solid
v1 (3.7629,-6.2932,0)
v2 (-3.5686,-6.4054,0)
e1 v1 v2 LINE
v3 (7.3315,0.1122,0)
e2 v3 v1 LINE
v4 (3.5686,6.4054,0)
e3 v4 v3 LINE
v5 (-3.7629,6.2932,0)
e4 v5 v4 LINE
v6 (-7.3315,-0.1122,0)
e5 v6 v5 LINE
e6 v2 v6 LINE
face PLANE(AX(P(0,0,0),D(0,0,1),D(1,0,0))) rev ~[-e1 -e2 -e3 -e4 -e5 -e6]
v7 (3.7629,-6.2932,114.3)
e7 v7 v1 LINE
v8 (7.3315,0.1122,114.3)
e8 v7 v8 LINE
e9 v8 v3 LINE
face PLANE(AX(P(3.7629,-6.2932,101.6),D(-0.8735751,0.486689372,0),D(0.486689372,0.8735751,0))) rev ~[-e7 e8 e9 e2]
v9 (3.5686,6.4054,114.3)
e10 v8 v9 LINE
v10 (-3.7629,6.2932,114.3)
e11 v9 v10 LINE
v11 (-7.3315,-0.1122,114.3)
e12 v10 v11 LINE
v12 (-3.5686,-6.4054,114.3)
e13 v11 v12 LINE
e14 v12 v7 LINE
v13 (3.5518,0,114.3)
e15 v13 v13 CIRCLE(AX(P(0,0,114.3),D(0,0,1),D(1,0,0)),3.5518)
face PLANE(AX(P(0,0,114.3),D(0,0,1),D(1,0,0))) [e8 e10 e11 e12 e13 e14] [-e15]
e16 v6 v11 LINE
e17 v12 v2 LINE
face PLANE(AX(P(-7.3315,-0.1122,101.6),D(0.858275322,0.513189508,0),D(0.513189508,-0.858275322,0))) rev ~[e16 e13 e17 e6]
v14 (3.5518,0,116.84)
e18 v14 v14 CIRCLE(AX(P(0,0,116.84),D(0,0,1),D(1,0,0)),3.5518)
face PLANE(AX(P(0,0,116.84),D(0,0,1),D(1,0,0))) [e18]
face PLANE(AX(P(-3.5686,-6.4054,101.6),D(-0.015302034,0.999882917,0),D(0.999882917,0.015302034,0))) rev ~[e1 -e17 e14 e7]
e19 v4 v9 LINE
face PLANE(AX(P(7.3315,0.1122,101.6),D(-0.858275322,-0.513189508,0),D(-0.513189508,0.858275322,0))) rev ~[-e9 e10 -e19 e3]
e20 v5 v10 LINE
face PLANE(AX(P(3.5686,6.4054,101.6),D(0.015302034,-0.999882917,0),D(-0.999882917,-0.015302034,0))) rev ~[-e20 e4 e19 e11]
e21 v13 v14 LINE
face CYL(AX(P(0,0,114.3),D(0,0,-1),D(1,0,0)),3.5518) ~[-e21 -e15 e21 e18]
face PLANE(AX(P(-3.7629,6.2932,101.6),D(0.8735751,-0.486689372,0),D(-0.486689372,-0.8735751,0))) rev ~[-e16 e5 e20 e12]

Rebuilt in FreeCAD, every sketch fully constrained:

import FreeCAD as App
import Part
import Sketcher
from FreeCAD import Vector
Q = App.Units.Quantity

doc = App.newDocument("Part")
body = doc.addObject("PartDesign::Body", "Body")

# Sketch on XY plane
sketch1 = body.newObject("Sketcher::SketchObject", "Sketch")
sketch1.AttachmentSupport = (doc.getObject("XY_Plane"), [""])
sketch1.MapMode = "FlatFace"
sketch1.addGeometry(Part.LineSegment(Vector(3.5686, 6.4054, 0), Vector(-3.7629, 6.2932, 0)), False)
sketch1.addGeometry(Part.LineSegment(Vector(-3.7629, 6.2932, 0), Vector(-7.3315, -0.1122, 0)), False)
sketch1.addGeometry(Part.LineSegment(Vector(-7.3315, -0.1122, 0), Vector(-3.5686, -6.4054, 0)), False)
sketch1.addGeometry(Part.LineSegment(Vector(-3.5686, -6.4054, 0), Vector(3.7629, -6.2932, 0)), False)
sketch1.addGeometry(Part.LineSegment(Vector(3.7629, -6.2932, 0), Vector(7.3315, 0.1122, 0)), False)
sketch1.addGeometry(Part.LineSegment(Vector(7.3315, 0.1122, 0), Vector(3.5686, 6.4054, 0)), False)
sketch1.addConstraint(Sketcher.Constraint("Coincident", 0, 2, 1, 1))
sketch1.addConstraint(Sketcher.Constraint("Coincident", 1, 2, 2, 1))
sketch1.addConstraint(Sketcher.Constraint("Coincident", 2, 2, 3, 1))
sketch1.addConstraint(Sketcher.Constraint("Coincident", 3, 2, 4, 1))
sketch1.addConstraint(Sketcher.Constraint("Coincident", 4, 2, 5, 1))
sketch1.addConstraint(Sketcher.Constraint("Coincident", 5, 2, 0, 1))
sketch1.addConstraint(Sketcher.Constraint("Symmetric", 0, 2, 3, 2, -1, 1))
sketch1.addConstraint(Sketcher.Constraint("Symmetric", 1, 2, 4, 2, -1, 1))
sketch1.addConstraint(Sketcher.Constraint("Symmetric", 2, 2, 5, 2, -1, 1))
sketch1.addConstraint(Sketcher.Constraint("Equal", 0, 1))
sketch1.addConstraint(Sketcher.Constraint("Equal", 1, 2))
sketch1.addConstraint(Sketcher.Constraint("DistanceX", 2, 2, 5, 2, Q("0.281 in")))
sketch1.addConstraint(Sketcher.Constraint("DistanceX", 1, 2, 0, 2, Q("0.1405 in")))
sketch1.addConstraint(Sketcher.Constraint("DistanceX", 0, 2, 3, 2, Q("0.2963 in")))
sketch1.addConstraint(Sketcher.Constraint("DistanceY", 2, 2, 4, 2, Q("0.2566 in")))
pad1 = body.newObject("PartDesign::Pad", "Pad")
pad1.Profile = sketch1
pad1.Length = Q("4 in")

# Sketch on XY plane
sketch2 = body.newObject("Sketcher::SketchObject", "Sketch001")
sketch2.AttachmentSupport = (doc.getObject("XY_Plane"), [""])
sketch2.MapMode = "FlatFace"
sketch2.AttachmentOffset = App.Placement(Vector(0, 0, 4 * 25.4), App.Rotation())
sketch2.addGeometry(Part.Circle(Vector(0, 0, 0), Vector(0, 0, 1), 4.1084), False)
sketch2.addConstraint(Sketcher.Constraint("Coincident", 0, 3, -1, 1))
sketch2.addConstraint(Sketcher.Constraint("Diameter", 0, Q("0.3235 in")))
pad2 = body.newObject("PartDesign::Pad", "Pad001")
pad2.Profile = sketch2
pad2.Length = Q("0.01 in")

# Sketch on XY plane
sketch3 = body.newObject("Sketcher::SketchObject", "Sketch002")
sketch3.AttachmentSupport = (doc.getObject("XY_Plane"), [""])
sketch3.MapMode = "FlatFace"
sketch3.AttachmentOffset = App.Placement(Vector(0, 0, 4 * 25.4), App.Rotation())
sketch3.addGeometry(Part.LineSegment(Vector(7.3315, 0.1122, 0), Vector(3.5686, 6.4054, 0)), False)
sketch3.addGeometry(Part.LineSegment(Vector(3.5686, 6.4054, 0), Vector(-3.7629, 6.2932, 0)), False)
sketch3.addGeometry(Part.LineSegment(Vector(-3.7629, 6.2932, 0), Vector(-7.3315, -0.1122, 0)), False)
sketch3.addGeometry(Part.LineSegment(Vector(-7.3315, -0.1122, 0), Vector(-3.5686, -6.4054, 0)), False)
sketch3.addGeometry(Part.LineSegment(Vector(-3.5686, -6.4054, 0), Vector(3.7629, -6.2932, 0)), False)
sketch3.addGeometry(Part.LineSegment(Vector(3.7629, -6.2932, 0), Vector(7.3315, 0.1122, 0)), False)
sketch3.addConstraint(Sketcher.Constraint("Coincident", 0, 2, 1, 1))
sketch3.addConstraint(Sketcher.Constraint("Coincident", 1, 2, 2, 1))
sketch3.addConstraint(Sketcher.Constraint("Coincident", 2, 2, 3, 1))
sketch3.addConstraint(Sketcher.Constraint("Coincident", 3, 2, 4, 1))
sketch3.addConstraint(Sketcher.Constraint("Coincident", 4, 2, 5, 1))
sketch3.addConstraint(Sketcher.Constraint("Coincident", 5, 2, 0, 1))
sketch3.addConstraint(Sketcher.Constraint("Symmetric", 0, 2, 3, 2, -1, 1))
sketch3.addConstraint(Sketcher.Constraint("Symmetric", 1, 2, 4, 2, -1, 1))
sketch3.addConstraint(Sketcher.Constraint("Symmetric", 2, 2, 5, 2, -1, 1))
sketch3.addConstraint(Sketcher.Constraint("Equal", 0, 1))
sketch3.addConstraint(Sketcher.Constraint("Equal", 1, 2))
sketch3.addConstraint(Sketcher.Constraint("DistanceX", 3, 2, 0, 2, Q("0.281 in")))
sketch3.addConstraint(Sketcher.Constraint("DistanceX", 2, 2, 1, 2, Q("0.1405 in")))
sketch3.addConstraint(Sketcher.Constraint("DistanceY", 2, 2, 0, 2, Q("0.2566 in")))
sketch3.addConstraint(Sketcher.Constraint("DistanceX", 1, 2, 4, 2, Q("0.2963 in")))
pad3 = body.newObject("PartDesign::Pad", "Pad002")
pad3.Profile = sketch3
pad3.Length = Q("0.5 in")

# Sketch on XY plane
sketch4 = body.newObject("Sketcher::SketchObject", "Sketch003")
sketch4.AttachmentSupport = (doc.getObject("XY_Plane"), [""])
sketch4.MapMode = "FlatFace"
sketch4.AttachmentOffset = App.Placement(Vector(0, 0, 4.5 * 25.4), App.Rotation())
sketch4.addGeometry(Part.Circle(Vector(0, 0, 0), Vector(0, 0, 1), 3.5518), False)
sketch4.addConstraint(Sketcher.Constraint("Coincident", 0, 3, -1, 1))
sketch4.addConstraint(Sketcher.Constraint("Diameter", 0, 7.1036))
pad4 = body.newObject("PartDesign::Pad", "Pad003")
pad4.Profile = sketch4
pad4.Length = Q("0.1 in")

doc.recompute()
